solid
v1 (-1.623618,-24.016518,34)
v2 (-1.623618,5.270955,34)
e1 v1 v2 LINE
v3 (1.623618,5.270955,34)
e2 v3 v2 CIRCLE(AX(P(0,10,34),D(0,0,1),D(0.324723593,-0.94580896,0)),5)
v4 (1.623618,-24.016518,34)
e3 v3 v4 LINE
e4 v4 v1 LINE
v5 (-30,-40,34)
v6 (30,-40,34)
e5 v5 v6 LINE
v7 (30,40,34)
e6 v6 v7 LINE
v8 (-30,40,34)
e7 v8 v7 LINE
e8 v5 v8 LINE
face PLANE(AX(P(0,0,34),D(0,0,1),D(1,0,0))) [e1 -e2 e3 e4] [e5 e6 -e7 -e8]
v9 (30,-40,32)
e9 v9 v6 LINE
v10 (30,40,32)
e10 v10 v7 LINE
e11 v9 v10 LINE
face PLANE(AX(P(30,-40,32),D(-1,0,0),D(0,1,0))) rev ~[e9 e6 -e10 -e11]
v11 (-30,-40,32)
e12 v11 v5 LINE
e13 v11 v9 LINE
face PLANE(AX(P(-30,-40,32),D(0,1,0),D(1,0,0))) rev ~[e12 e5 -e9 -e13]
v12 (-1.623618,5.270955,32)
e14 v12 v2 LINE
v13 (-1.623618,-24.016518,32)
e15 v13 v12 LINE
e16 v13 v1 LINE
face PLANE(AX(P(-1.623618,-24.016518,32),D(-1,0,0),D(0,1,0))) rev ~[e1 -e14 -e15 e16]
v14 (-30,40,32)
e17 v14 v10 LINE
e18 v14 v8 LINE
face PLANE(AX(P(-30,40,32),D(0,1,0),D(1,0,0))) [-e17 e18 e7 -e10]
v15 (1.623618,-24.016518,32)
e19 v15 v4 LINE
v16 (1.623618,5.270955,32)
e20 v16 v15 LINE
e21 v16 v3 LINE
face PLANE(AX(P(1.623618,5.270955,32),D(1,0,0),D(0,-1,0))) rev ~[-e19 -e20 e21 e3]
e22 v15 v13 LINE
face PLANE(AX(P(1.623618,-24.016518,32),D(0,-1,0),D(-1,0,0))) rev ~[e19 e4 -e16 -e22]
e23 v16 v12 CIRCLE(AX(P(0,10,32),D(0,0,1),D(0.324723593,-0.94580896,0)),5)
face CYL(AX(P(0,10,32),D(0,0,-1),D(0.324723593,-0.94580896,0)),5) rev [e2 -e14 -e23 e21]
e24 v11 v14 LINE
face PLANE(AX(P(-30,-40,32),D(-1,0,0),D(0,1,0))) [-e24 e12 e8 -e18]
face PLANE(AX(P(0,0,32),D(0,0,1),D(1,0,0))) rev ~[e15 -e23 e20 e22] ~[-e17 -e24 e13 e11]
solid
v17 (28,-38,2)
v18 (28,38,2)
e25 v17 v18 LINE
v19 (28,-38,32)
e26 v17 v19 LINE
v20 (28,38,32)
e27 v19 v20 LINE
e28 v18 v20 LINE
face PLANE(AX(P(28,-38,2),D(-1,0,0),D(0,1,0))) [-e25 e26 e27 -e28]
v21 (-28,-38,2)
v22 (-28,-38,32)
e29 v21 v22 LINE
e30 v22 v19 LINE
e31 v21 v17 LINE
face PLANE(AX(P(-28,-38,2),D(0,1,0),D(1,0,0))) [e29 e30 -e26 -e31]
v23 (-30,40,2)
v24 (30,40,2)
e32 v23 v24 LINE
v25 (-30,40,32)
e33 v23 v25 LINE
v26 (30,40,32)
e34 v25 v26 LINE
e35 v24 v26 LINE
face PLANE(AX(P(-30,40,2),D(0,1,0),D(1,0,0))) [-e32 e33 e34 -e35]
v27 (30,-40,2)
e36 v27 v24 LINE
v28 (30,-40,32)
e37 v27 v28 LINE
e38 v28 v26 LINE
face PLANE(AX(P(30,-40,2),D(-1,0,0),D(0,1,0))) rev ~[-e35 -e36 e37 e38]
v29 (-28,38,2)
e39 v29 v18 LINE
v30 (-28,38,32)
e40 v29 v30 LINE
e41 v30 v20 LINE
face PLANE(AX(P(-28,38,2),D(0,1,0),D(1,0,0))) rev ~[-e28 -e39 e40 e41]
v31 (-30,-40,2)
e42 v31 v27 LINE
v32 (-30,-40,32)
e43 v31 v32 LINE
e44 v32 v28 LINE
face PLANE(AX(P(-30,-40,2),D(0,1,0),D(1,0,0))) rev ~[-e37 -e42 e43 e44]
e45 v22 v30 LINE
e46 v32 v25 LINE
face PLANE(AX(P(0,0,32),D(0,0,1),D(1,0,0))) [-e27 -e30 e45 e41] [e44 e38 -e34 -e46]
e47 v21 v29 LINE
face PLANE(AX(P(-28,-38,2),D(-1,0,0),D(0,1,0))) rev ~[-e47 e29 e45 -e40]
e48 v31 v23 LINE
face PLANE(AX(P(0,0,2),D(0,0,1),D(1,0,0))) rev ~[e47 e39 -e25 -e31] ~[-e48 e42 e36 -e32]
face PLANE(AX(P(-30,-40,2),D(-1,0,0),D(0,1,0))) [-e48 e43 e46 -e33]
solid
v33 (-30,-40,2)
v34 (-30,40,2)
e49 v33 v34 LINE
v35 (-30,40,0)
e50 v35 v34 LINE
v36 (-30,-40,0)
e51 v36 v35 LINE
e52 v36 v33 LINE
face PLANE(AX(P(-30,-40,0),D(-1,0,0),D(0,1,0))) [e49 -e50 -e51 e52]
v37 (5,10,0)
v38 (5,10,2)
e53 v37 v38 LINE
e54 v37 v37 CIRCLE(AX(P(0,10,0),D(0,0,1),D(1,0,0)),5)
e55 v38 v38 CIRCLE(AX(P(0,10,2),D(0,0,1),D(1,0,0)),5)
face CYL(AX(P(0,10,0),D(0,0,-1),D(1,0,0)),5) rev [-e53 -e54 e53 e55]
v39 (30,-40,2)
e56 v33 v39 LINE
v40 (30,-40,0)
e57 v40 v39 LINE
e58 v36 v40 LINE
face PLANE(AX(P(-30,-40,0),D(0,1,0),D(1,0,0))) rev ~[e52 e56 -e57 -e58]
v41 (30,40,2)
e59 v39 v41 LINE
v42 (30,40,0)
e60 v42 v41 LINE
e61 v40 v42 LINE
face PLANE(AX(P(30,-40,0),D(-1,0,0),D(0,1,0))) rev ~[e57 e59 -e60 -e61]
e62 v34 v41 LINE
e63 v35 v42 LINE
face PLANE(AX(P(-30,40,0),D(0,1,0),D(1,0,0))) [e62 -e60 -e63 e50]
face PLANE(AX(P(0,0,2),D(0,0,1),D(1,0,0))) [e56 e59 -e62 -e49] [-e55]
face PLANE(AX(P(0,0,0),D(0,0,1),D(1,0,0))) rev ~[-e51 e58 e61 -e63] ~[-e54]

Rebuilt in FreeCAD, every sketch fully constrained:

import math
import FreeCAD as App
import Part
import Sketcher
from FreeCAD import Vector
Q = App.Units.Quantity

doc = App.newDocument("Part")
body = doc.addObject("PartDesign::Body", "Body")

# Sketch on XY plane
sketch1 = doc.addObject("Sketcher::SketchObject", "Sketch")
body.addObject(sketch1)
sketch1.AttachmentSupport = (doc.XY_Plane, [""])
sketch1.MapMode = "FlatFace"
sketch1.addGeometry(Part.LineSegment(Vector(-30, 40, 0), Vector(-30, -40, 0)), False)
sketch1.addGeometry(Part.LineSegment(Vector(-30, -40, 0), Vector(30, -40, 0)), False)
sketch1.addGeometry(Part.LineSegment(Vector(30, -40, 0), Vector(30, 40, 0)), False)
sketch1.addGeometry(Part.LineSegment(Vector(30, 40, 0), Vector(-30, 40, 0)), False)
sketch1.addGeometry(Part.Circle(Vector(0, 10, 0), Vector(0, 0, 1), 5), False)
sketch1.addConstraint(Sketcher.Constraint("Coincident", 0, 2, 1, 1))
sketch1.addConstraint(Sketcher.Constraint("Coincident", 1, 2, 2, 1))
sketch1.addConstraint(Sketcher.Constraint("Coincident", 2, 2, 3, 1))
sketch1.addConstraint(Sketcher.Constraint("Coincident", 3, 2, 0, 1))
sketch1.addConstraint(Sketcher.Constraint("Vertical", 0))
sketch1.addConstraint(Sketcher.Constraint("Horizontal", 1))
sketch1.addConstraint(Sketcher.Constraint("Vertical", 2))
sketch1.addConstraint(Sketcher.Constraint("Horizontal", 3))
sketch1.addConstraint(Sketcher.Constraint("Symmetric", 0, 2, 2, 2, -1, 1))
sketch1.addConstraint(Sketcher.Constraint("PointOnObject", 4, 3, -2))
sketch1.addConstraint(Sketcher.Constraint("Diameter", 4, Q("10 mm")))
sketch1.addConstraint(Sketcher.Constraint("DistanceX", 1, 1, 1, 2, Q("60 mm")))
sketch1.addConstraint(Sketcher.Constraint("DistanceY", 0, 2, 0, 1, Q("80 mm")))
sketch1.addConstraint(Sketcher.Constraint("DistanceY", -1, 1, 4, 3, Q("10 mm")))
pad1 = doc.addObject("PartDesign::Pad", "Pad")
body.addObject(pad1)
pad1.Profile = sketch1
pad1.Length = 2
body2 = doc.addObject("PartDesign::Body", "Body001")

# Sketch on XY plane
sketch2 = doc.addObject("Sketcher::SketchObject", "Sketch001")
body2.addObject(sketch2)
sketch2.AttachmentSupport = (doc.getObject("XY_Plane001"), [""])
sketch2.MapMode = "FlatFace"
sketch2.AttachmentOffset = App.Placement(Vector(0, 0, 2), App.Rotation())
sketch2.addGeometry(Part.LineSegment(Vector(-30, 40, 0), Vector(-30, -40, 0)), False)
sketch2.addGeometry(Part.LineSegment(Vector(-30, -40, 0), Vector(30, -40, 0)), False)
sketch2.addGeometry(Part.LineSegment(Vector(30, -40, 0), Vector(30, 40, 0)), False)
sketch2.addGeometry(Part.LineSegment(Vector(30, 40, 0), Vector(-30, 40, 0)), False)
sketch2.addGeometry(Part.LineSegment(Vector(28, -38, 0), Vector(-28, -38, 0)), False)
sketch2.addGeometry(Part.LineSegment(Vector(-28, -38, 0), Vector(-28, 38, 0)), False)
sketch2.addGeometry(Part.LineSegment(Vector(-28, 38, 0), Vector(28, 38, 0)), False)
sketch2.addGeometry(Part.LineSegment(Vector(28, 38, 0), Vector(28, -38, 0)), False)
sketch2.addConstraint(Sketcher.Constraint("Coincident", 0, 2, 1, 1))
sketch2.addConstraint(Sketcher.Constraint("Coincident", 1, 2, 2, 1))
sketch2.addConstraint(Sketcher.Constraint("Coincident", 2, 2, 3, 1))
sketch2.addConstraint(Sketcher.Constraint("Coincident", 3, 2, 0, 1))
sketch2.addConstraint(Sketcher.Constraint("Coincident", 4, 2, 5, 1))
sketch2.addConstraint(Sketcher.Constraint("Coincident", 5, 2, 6, 1))
sketch2.addConstraint(Sketcher.Constraint("Coincident", 6, 2, 7, 1))
sketch2.addConstraint(Sketcher.Constraint("Coincident", 7, 2, 4, 1))
sketch2.addConstraint(Sketcher.Constraint("Vertical", 0))
sketch2.addConstraint(Sketcher.Constraint("Horizontal", 1))
sketch2.addConstraint(Sketcher.Constraint("Vertical", 2))
sketch2.addConstraint(Sketcher.Constraint("Horizontal", 3))
sketch2.addConstraint(Sketcher.Constraint("Horizontal", 4))
sketch2.addConstraint(Sketcher.Constraint("Vertical", 5))
sketch2.addConstraint(Sketcher.Constraint("Horizontal", 6))
sketch2.addConstraint(Sketcher.Constraint("Vertical", 7))
sketch2.addConstraint(Sketcher.Constraint("Symmetric", 0, 2, 2, 2, -1, 1))
sketch2.addConstraint(Sketcher.Constraint("Symmetric", 4, 2, 6, 2, -1, 1))
sketch2.addConstraint(Sketcher.Constraint("DistanceX", 1, 1, 1, 2, Q("60 mm")))
sketch2.addConstraint(Sketcher.Constraint("DistanceX", 4, 2, 4, 1, Q("56 mm")))
sketch2.addConstraint(Sketcher.Constraint("DistanceY", 0, 2, 0, 1, Q("80 mm")))
sketch2.addConstraint(Sketcher.Constraint("DistanceY", 5, 1, 5, 2, Q("76 mm")))
pad2 = doc.addObject("PartDesign::Pad", "Pad001")
body2.addObject(pad2)
pad2.Profile = sketch2
pad2.Length = 30
body3 = doc.addObject("PartDesign::Body", "Body002")

# Sketch on XY plane
sketch3 = doc.addObject("Sketcher::SketchObject", "Sketch002")
body3.addObject(sketch3)
sketch3.AttachmentSupport = (doc.getObject("XY_Plane002"), [""])
sketch3.MapMode = "FlatFace"
sketch3.AttachmentOffset = App.Placement(Vector(0, 0, 32), App.Rotation())
sketch3.addGeometry(Part.LineSegment(Vector(-30, 40, 0), Vector(-30, -40, 0)), False)
sketch3.addGeometry(Part.LineSegment(Vector(-30, -40, 0), Vector(30, -40, 0)), False)
sketch3.addGeometry(Part.LineSegment(Vector(30, -40, 0), Vector(30, 40, 0)), False)
sketch3.addGeometry(Part.LineSegment(Vector(30, 40, 0), Vector(-30, 40, 0)), False)
sketch3.addGeometry(Part.ArcOfCircle(Part.Circle(Vector(0, 10, 0), Vector(0, 0, 1), 5), math.radians(-71), math.radians(251)), False)
sketch3.addGeometry(Part.LineSegment(Vector(1.6, 5.3, 0), Vector(1.6, -24, 0)), False)
sketch3.addGeometry(Part.LineSegment(Vector(1.6, -24, 0), Vector(-1.6, -24, 0)), False)
sketch3.addGeometry(Part.LineSegment(Vector(-1.6, -24, 0), Vector(-1.6, 5.3, 0)), False)
sketch3.addConstraint(Sketcher.Constraint("Coincident", 0, 2, 1, 1))
sketch3.addConstraint(Sketcher.Constraint("Coincident", 1, 2, 2, 1))
sketch3.addConstraint(Sketcher.Constraint("Coincident", 2, 2, 3, 1))
sketch3.addConstraint(Sketcher.Constraint("Coincident", 3, 2, 0, 1))
sketch3.addConstraint(Sketcher.Constraint("Coincident", 4, 1, 5, 1))
sketch3.addConstraint(Sketcher.Constraint("Coincident", 5, 2, 6, 1))
sketch3.addConstraint(Sketcher.Constraint("Coincident", 6, 2, 7, 1))
sketch3.addConstraint(Sketcher.Constraint("Coincident", 7, 2, 4, 2))
sketch3.addConstraint(Sketcher.Constraint("Vertical", 0))
sketch3.addConstraint(Sketcher.Constraint("Horizontal", 1))
sketch3.addConstraint(Sketcher.Constraint("Vertical", 2))
sketch3.addConstraint(Sketcher.Constraint("Horizontal", 3))
sketch3.addConstraint(Sketcher.Constraint("Vertical", 5))
sketch3.addConstraint(Sketcher.Constraint("Horizontal", 6))
sketch3.addConstraint(Sketcher.Constraint("Vertical", 7))
sketch3.addConstraint(Sketcher.Constraint("Symmetric", 0, 2, 2, 2, -1, 1))
sketch3.addConstraint(Sketcher.Constraint("Symmetric", 4, 1, 7, 2, -2))
sketch3.addConstraint(Sketcher.Constraint("Radius", 4, Q("5 mm")))
sketch3.addConstraint(Sketcher.Constraint("DistanceX", 1, 1, 1, 2, Q("60 mm")))
sketch3.addConstraint(Sketcher.Constraint("DistanceY", 0, 2, 0, 1, Q("80 mm")))
sketch3.addConstraint(Sketcher.Constraint("DistanceY", -1, 1, 4, 3, Q("10 mm")))
sketch3.addConstraint(Sketcher.Constraint("DistanceX", 6, 2, 6, 1, Q("3.247236 mm")))
sketch3.addConstraint(Sketcher.Constraint("DistanceY", 5, 2, 5, 1, Q("29.287473 mm")))
pad3 = doc.addObject("PartDesign::Pad", "Pad002")
body3.addObject(pad3)
pad3.Profile = sketch3
pad3.Length = 2

doc.recompute()
